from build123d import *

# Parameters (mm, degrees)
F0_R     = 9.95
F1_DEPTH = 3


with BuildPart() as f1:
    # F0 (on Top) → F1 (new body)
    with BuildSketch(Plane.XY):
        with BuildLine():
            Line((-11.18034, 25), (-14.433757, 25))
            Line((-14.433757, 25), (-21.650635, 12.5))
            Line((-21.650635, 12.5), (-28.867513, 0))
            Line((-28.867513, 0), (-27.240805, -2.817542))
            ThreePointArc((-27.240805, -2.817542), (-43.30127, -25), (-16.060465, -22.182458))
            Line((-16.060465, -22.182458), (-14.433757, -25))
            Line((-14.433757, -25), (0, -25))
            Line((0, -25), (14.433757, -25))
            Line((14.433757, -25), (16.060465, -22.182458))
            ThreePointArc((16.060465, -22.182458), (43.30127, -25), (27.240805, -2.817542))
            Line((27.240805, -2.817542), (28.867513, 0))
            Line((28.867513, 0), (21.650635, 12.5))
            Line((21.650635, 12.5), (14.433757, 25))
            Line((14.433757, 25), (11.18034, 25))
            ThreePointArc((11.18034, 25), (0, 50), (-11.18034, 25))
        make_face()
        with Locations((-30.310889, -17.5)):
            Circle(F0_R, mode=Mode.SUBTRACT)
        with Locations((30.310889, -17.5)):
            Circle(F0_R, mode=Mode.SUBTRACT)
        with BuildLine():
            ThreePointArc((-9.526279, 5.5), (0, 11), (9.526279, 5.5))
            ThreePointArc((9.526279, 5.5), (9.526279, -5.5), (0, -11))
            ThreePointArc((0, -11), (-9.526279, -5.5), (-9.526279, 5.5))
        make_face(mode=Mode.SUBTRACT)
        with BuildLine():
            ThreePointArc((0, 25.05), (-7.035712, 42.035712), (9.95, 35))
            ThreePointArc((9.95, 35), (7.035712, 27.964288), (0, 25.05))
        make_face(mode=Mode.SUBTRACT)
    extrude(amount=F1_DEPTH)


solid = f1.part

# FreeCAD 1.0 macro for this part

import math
import FreeCAD as App
import Part
import Sketcher
from FreeCAD import Vector
Q = App.Units.Quantity

doc = App.newDocument("Part")
body = doc.addObject("PartDesign::Body", "Body")

# Sketch on XY plane
sketch1 = body.newObject("Sketcher::SketchObject", "Sketch")
sketch1.AttachmentSupport = (doc.getObject("XY_Plane"), [""])
sketch1.MapMode = "FlatFace"
sketch1.addGeometry(Part.LineSegment(Vector(-11.2, 25, 0), Vector(-14.4, 25, 0)), False)
sketch1.addGeometry(Part.LineSegment(Vector(-14.4, 25, 0), Vector(-28.9, 0, 0)), False)
sketch1.addGeometry(Part.LineSegment(Vector(-28.9, 0, 0), Vector(-27.2, -2.8, 0)), False)
sketch1.addGeometry(Part.ArcOfCircle(Part.Circle(Vector(-30.3, -17.5, 0), Vector(0, 0, 1), 15), math.radians(78), math.radians(342)), False)
sketch1.addGeometry(Part.LineSegment(Vector(-16.1, -22.2, 0), Vector(-14.4, -25, 0)), False)
sketch1.addGeometry(Part.LineSegment(Vector(-14.4, -25, 0), Vector(14.4, -25, 0)), False)
sketch1.addGeometry(Part.LineSegment(Vector(14.4, -25, 0), Vector(16.1, -22.2, 0)), False)
sketch1.addGeometry(Part.ArcOfCircle(Part.Circle(Vector(30.3, -17.5, 0), Vector(0, 0, 1), 15), math.radians(-162), math.radians(102)), False)
sketch1.addGeometry(Part.LineSegment(Vector(27.2, -2.8, 0), Vector(28.9, 0, 0)), False)
sketch1.addGeometry(Part.LineSegment(Vector(28.9, 0, 0), Vector(14.4, 25, 0)), False)
sketch1.addGeometry(Part.LineSegment(Vector(14.4, 25, 0), Vector(11.2, 25, 0)), False)
sketch1.addGeometry(Part.ArcOfCircle(Part.Circle(Vector(0, 35, 0), Vector(0, 0, 1), 15), math.radians(-42), math.radians(222)), False)
sketch1.addGeometry(Part.Circle(Vector(-30.3, -17.5, 0), Vector(0, 0, 1), 9.9), False)
sketch1.addGeometry(Part.Circle(Vector(30.3, -17.5, 0), Vector(0, 0, 1), 9.9), False)
sketch1.addGeometry(Part.ArcOfCircle(Part.Circle(Vector(0, 0, 0), Vector(0, 0, 1), 11), math.radians(150), math.radians(270)), False)
sketch1.addGeometry(Part.ArcOfCircle(Part.Circle(Vector(0, 0, 0), Vector(0, 0, 1), 11), math.radians(30), math.radians(150)), False)
sketch1.addGeometry(Part.ArcOfCircle(Part.Circle(Vector(0, 0, 0), Vector(0, 0, 1), 11), math.radians(-90), math.radians(30)), False)
sketch1.addGeometry(Part.ArcOfCircle(Part.Circle(Vector(0, 35, 0), Vector(0, 0, 1), 10), math.radians(-90), math.radians(0)), False)
sketch1.addGeometry(Part.ArcOfCircle(Part.Circle(Vector(0, 35, 0), Vector(0, 0, 1), 9.9), math.radians(0), math.radians(270)), False)
sketch1.addConstraint(Sketcher.Constraint("Coincident", 0, 2, 1, 1))
sketch1.addConstraint(Sketcher.Constraint("Coincident", 1, 2, 2, 1))
sketch1.addConstraint(Sketcher.Constraint("Coincident", 2, 2, 3, 1))
sketch1.addConstraint(Sketcher.Constraint("Coincident", 3, 2, 4, 1))
sketch1.addConstraint(Sketcher.Constraint("Coincident", 4, 2, 5, 1))
sketch1.addConstraint(Sketcher.Constraint("Coincident", 5, 2, 6, 1))
sketch1.addConstraint(Sketcher.Constraint("Coincident", 6, 2, 7, 1))
sketch1.addConstraint(Sketcher.Constraint("Coincident", 7, 2, 8, 1))
sketch1.addConstraint(Sketcher.Constraint("Coincident", 8, 2, 9, 1))
sketch1.addConstraint(Sketcher.Constraint("Coincident", 9, 2, 10, 1))
sketch1.addConstraint(Sketcher.Constraint("Coincident", 10, 2, 11, 1))
sketch1.addConstraint(Sketcher.Constraint("Coincident", 11, 2, 0, 1))
sketch1.addConstraint(Sketcher.Constraint("Tangent", 14, 1, 15, 2))
sketch1.addConstraint(Sketcher.Constraint("Tangent", 15, 1, 16, 2))
sketch1.addConstraint(Sketcher.Constraint("Tangent", 16, 1, 14, 2))
sketch1.addConstraint(Sketcher.Constraint("Tangent", 17, 1, 18, 2))
sketch1.addConstraint(Sketcher.Constraint("Coincident", 18, 1, 17, 2))
sketch1.addConstraint(Sketcher.Constraint("Horizontal", 0))
sketch1.addConstraint(Sketcher.Constraint("Horizontal", 5))
sketch1.addConstraint(Sketcher.Constraint("Horizontal", 10))
sketch1.addConstraint(Sketcher.Constraint("Coincident", 14, 3, -1, 1))
sketch1.addConstraint(Sketcher.Constraint("Coincident", 12, 3, 3, 3))
sketch1.addConstraint(Sketcher.Constraint("Coincident", 13, 3, 7, 3))
sketch1.addConstraint(Sketcher.Constraint("Coincident", 17, 3, 11, 3))
sketch1.addConstraint(Sketcher.Constraint("Equal", 3, 7))
sketch1.addConstraint(Sketcher.Constraint("Equal", 7, 11))
sketch1.addConstraint(Sketcher.Constraint("Equal", 12, 13))
sketch1.addConstraint(Sketcher.Constraint("Equal", 13, 17))
sketch1.addConstraint(Sketcher.Constraint("Symmetric", 0, 2, 5, 2, -1, 1))
sketch1.addConstraint(Sketcher.Constraint("Symmetric", 1, 2, 8, 2, -1, 1))
sketch1.addConstraint(Sketcher.Constraint("Symmetric", 4, 2, 9, 2, -1, 1))
sketch1.addConstraint(Sketcher.Constraint("Symmetric", 3, 3, 7, 3, -2))
sketch1.addConstraint(Sketcher.Constraint("PointOnObject", 11, 3, -2))
sketch1.addConstraint(Sketcher.Constraint("PointOnObject", 1, 2, -1))
sketch1.addConstraint(Sketcher.Constraint("PointOnObject", 16, 1, -2))
sketch1.addConstraint(Sketcher.Constraint("PointOnObject", 17, 1, -2))
sketch1.addConstraint(Sketcher.Constraint("Parallel", 2, 4))
sketch1.addConstraint(Sketcher.Constraint("Parallel", 1, 6))
sketch1.addConstraint(Sketcher.Constraint("Parallel", 6, 8))
sketch1.addConstraint(Sketcher.Constraint("Parallel", 4, 9))
sketch1.addConstraint(Sketcher.Constraint("Horizontal", 3, 2, 6, 2))
sketch1.addConstraint(Sketcher.Constraint("Horizontal", 14, 1, 15, 1))
sketch1.addConstraint(Sketcher.Constraint("Horizontal", 17, 3, 18, 1))
sketch1.addConstraint(Sketcher.Constraint("Equal", 2, 4))
sketch1.addConstraint(Sketcher.Constraint("Radius", 3, Q("15 mm")))
sketch1.addConstraint(Sketcher.Constraint("Radius", 14, Q("11 mm")))
sketch1.addConstraint(Sketcher.Constraint("Diameter", 12, Q("19.9 mm")))
sketch1.addConstraint(Sketcher.Constraint("Angle", 1, Q("-119.999999 deg")))
sketch1.addConstraint(Sketcher.Constraint("DistanceY", -1, 1, 11, 3, Q("35 mm")))
sketch1.addConstraint(Sketcher.Constraint("DistanceY", -1, 1, 0, 2, Q("25 mm")))
sketch1.addConstraint(Sketcher.Constraint("DistanceY", 3, 3, -1, 1, Q("17.5 mm")))
sketch1.addConstraint(Sketcher.Constraint("DistanceY", -1, 1, 14, 1, Q("5.5 mm")))
sketch1.addConstraint(Sketcher.Constraint("DistanceX", 0, 2, 0, 1, Q("3.253417 mm")))
pad1 = body.newObject("PartDesign::Pad", "Pad")
pad1.Profile = sketch1
pad1.Length = 3

doc.recompute()
